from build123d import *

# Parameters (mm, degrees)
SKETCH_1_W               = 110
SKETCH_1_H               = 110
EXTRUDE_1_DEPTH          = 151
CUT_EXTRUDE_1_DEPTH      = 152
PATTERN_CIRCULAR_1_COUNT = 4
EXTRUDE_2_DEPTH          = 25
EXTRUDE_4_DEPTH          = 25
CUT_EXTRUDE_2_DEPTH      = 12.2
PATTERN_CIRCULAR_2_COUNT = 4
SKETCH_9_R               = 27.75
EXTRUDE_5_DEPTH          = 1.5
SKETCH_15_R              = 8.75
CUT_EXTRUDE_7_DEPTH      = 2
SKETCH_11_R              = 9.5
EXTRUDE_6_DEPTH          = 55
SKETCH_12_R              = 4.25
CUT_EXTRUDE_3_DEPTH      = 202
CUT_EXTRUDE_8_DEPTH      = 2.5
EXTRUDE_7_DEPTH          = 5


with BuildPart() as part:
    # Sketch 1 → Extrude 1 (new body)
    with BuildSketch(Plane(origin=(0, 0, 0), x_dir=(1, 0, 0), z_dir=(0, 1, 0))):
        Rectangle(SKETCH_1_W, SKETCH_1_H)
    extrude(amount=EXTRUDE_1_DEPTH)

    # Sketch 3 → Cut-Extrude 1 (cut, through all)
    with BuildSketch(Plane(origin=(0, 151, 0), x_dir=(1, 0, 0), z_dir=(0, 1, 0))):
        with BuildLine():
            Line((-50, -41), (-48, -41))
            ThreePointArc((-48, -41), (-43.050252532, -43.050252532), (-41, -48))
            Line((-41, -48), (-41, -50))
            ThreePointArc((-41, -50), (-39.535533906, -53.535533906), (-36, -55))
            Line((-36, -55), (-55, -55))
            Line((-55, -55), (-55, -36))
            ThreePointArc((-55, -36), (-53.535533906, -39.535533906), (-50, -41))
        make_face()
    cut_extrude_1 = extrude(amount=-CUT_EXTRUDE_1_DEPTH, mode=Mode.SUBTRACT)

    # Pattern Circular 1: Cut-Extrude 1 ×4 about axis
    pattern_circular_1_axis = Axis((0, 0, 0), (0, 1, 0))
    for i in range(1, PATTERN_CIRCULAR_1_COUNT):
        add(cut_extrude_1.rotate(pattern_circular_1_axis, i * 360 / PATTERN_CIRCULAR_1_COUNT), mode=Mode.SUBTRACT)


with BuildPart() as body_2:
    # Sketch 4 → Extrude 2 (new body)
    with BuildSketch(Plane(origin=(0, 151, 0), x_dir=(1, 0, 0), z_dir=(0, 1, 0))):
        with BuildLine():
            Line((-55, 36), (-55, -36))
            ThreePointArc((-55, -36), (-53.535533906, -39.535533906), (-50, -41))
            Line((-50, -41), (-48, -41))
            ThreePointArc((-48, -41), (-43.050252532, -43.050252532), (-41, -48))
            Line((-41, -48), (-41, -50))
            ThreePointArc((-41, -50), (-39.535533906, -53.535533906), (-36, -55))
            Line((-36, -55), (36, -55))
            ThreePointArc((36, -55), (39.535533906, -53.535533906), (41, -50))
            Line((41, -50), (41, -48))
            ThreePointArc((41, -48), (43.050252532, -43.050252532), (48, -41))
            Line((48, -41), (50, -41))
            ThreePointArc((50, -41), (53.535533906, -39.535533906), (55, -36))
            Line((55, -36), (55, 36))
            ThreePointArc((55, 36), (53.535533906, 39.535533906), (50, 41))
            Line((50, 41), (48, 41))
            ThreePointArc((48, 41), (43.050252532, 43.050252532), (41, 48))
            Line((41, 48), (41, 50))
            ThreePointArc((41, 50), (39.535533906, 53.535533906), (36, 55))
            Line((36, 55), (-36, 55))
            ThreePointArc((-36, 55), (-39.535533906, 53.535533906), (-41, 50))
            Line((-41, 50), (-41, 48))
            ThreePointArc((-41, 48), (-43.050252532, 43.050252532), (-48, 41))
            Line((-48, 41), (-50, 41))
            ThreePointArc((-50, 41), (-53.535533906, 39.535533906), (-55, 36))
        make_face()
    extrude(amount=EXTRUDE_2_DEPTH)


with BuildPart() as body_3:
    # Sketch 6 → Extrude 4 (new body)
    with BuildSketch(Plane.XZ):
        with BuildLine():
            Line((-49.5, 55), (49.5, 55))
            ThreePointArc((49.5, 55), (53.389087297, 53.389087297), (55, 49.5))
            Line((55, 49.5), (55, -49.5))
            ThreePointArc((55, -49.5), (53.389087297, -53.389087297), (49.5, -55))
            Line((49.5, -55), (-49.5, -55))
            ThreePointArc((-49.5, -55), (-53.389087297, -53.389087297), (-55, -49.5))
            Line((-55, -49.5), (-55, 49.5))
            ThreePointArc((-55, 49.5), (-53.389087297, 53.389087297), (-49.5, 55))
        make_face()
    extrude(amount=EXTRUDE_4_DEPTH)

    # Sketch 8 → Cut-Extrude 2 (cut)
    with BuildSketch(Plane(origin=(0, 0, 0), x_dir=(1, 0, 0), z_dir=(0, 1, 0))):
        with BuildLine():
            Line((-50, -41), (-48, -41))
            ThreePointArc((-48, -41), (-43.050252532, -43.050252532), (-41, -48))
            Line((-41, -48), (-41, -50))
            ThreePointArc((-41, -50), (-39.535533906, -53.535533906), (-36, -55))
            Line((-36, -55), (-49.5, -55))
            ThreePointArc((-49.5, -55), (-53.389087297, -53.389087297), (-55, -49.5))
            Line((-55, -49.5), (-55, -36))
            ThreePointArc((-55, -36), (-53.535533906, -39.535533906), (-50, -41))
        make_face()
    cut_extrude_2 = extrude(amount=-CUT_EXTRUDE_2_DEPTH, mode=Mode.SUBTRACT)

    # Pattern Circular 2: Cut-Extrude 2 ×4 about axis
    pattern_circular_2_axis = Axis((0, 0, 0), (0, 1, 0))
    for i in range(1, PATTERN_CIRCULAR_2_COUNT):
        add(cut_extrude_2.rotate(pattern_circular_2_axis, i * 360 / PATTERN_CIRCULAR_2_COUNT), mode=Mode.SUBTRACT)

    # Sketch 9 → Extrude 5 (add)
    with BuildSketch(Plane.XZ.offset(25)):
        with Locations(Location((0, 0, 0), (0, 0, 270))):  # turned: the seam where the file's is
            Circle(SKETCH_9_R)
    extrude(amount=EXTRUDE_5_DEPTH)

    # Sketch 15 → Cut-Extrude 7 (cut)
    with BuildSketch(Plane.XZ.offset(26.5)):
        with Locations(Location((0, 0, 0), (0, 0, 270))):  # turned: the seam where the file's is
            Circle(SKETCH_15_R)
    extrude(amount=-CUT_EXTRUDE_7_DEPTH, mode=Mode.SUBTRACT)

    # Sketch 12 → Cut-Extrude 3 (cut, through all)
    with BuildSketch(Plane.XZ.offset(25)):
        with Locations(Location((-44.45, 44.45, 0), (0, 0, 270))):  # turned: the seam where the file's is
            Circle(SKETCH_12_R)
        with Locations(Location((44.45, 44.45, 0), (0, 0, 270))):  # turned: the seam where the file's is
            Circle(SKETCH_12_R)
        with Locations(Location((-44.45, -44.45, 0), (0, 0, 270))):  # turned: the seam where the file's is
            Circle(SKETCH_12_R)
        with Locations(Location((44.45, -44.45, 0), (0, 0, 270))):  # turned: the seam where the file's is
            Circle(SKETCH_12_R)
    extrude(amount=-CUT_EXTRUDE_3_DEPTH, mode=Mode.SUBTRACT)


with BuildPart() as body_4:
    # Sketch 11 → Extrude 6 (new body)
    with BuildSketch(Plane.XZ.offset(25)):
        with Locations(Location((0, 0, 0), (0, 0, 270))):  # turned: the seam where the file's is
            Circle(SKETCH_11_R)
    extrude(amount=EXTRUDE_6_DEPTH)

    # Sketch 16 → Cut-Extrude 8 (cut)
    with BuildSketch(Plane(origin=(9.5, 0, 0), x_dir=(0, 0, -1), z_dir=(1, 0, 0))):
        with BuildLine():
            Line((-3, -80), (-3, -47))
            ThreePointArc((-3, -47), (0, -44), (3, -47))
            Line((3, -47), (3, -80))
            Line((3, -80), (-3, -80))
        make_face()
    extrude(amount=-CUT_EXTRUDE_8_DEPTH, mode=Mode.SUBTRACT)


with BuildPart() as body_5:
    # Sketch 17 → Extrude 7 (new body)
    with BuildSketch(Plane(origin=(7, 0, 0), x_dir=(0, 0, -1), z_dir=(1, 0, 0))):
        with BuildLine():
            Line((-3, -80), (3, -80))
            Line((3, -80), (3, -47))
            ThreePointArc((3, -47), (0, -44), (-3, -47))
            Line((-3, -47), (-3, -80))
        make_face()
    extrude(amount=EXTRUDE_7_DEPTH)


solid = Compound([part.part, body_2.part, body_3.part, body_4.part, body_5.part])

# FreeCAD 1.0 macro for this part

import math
import FreeCAD as App
import Part
import Sketcher

V = App.Vector
Q = App.Units.Quantity

doc = App.newDocument("Part")
body = doc.addObject("PartDesign::Body", "Body")

sketch1 = body.newObject("Sketcher::SketchObject", "Sketch")
sketch1.AttachmentSupport = (doc.getObject("XZ_Plane"), [""])
sketch1.MapMode = "FlatFace"
sketch1.addGeometry([
    Part.LineSegment(V(-55, -55, 0), V(-55, 55, 0)),
    Part.LineSegment(V(-55, 55, 0), V(55, 55, 0)),
    Part.LineSegment(V(55, 55, 0), V(55, -55, 0)),
    Part.LineSegment(V(55, -55, 0), V(-55, -55, 0)),
], False)
sketch1.addConstraint([
    Sketcher.Constraint("Coincident", 0, 2, 1, 1),
    Sketcher.Constraint("Coincident", 1, 2, 2, 1),
    Sketcher.Constraint("Coincident", 2, 2, 3, 1),
    Sketcher.Constraint("Coincident", 3, 2, 0, 1),
    Sketcher.Constraint("Vertical", 0),
    Sketcher.Constraint("Horizontal", 1),
    Sketcher.Constraint("Vertical", 2),
    Sketcher.Constraint("Horizontal", 3),
    Sketcher.Constraint("Symmetric", 0, 2, 2, 2, -1, 1),
    Sketcher.Constraint("Equal", 3, 0),
    Sketcher.Constraint("DistanceX", 1, 1, 1, 2, Q("110 mm")),
])
pad1 = body.newObject("PartDesign::Pad", "Pad")
pad1.Profile = sketch1
pad1.Length = 151
pad1.Reversed = True

sketch2 = body.newObject("Sketcher::SketchObject", "Sketch001")
sketch2.AttachmentSupport = (doc.getObject("XZ_Plane"), [""])
sketch2.MapMode = "FlatFace"
sketch2.AttachmentOffset = App.Placement(V(0, 0, -151), App.Rotation())
sketch2.addGeometry([
    Part.LineSegment(V(-48, 41, 0), V(-50, 41, 0)),
    Part.ArcOfCircle(Part.Circle(V(-50, 36, 0), V(0, 0, 1), 5), math.radians(90), math.radians(180)),
    Part.LineSegment(V(-55, 36, 0), V(-55, 55, 0)),
    Part.LineSegment(V(-55, 55, 0), V(-36, 55, 0)),
    Part.ArcOfCircle(Part.Circle(V(-36, 50, 0), V(0, 0, 1), 5), math.radians(90), math.radians(180)),
    Part.LineSegment(V(-41, 50, 0), V(-41, 48, 0)),
    Part.ArcOfCircle(Part.Circle(V(-48, 48, 0), V(0, 0, 1), 7), math.radians(-90), math.radians(0)),
], False)
sketch2.addConstraint([
    Sketcher.Constraint("Tangent", 0, 2, 1, 1),
    Sketcher.Constraint("Tangent", 1, 2, 2, 1),
    Sketcher.Constraint("Coincident", 2, 2, 3, 1),
    Sketcher.Constraint("Tangent", 3, 2, 4, 1),
    Sketcher.Constraint("Tangent", 4, 2, 5, 1),
    Sketcher.Constraint("Tangent", 5, 2, 6, 2),
    Sketcher.Constraint("Tangent", 6, 1, 0, 1),
    Sketcher.Constraint("Horizontal", 0),
    Sketcher.Constraint("Vertical", 2),
    Sketcher.Constraint("Horizontal", 3),
    Sketcher.Constraint("Vertical", 5),
    Sketcher.Constraint("Equal", 1, 4),
    Sketcher.Constraint("Equal", 3, 2),
    Sketcher.Constraint("Radius", 1, Q("5 mm")),
    Sketcher.Constraint("Radius", 6, Q("7 mm")),
    Sketcher.Constraint("DistanceX", 0, 2, 0, 1, Q("2 mm")),
    Sketcher.Constraint("DistanceX", 1, 3, -1, 1, Q("50 mm")),
    Sketcher.Constraint("DistanceY", -1, 1, 1, 3, Q("36 mm")),
])
pocket1 = body.newObject("PartDesign::Pocket", "Pocket")
pocket1.Profile = sketch2
pocket1.Type = "ThroughAll"
pocket1.Reversed = True
doc.recompute()

polarpattern = body.newObject("PartDesign::PolarPattern", "PolarPattern")
polarpattern.Originals = [pocket1]
polarpattern.Axis = (doc.getObject("Y_Axis"), [""])
polarpattern.Angle = 360
polarpattern.Occurrences = 4
body.Tip = polarpattern
body2 = doc.addObject("PartDesign::Body", "Body001")

sketch3 = body2.newObject("Sketcher::SketchObject", "Sketch002")
sketch3.AttachmentSupport = (doc.getObject("XZ_Plane001"), [""])
sketch3.MapMode = "FlatFace"
sketch3.AttachmentOffset = App.Placement(V(0, 0, -151), App.Rotation())
sketch3.addGeometry([
    Part.LineSegment(V(-55, -36, 0), V(-55, 36, 0)),
    Part.ArcOfCircle(Part.Circle(V(-50, 36, 0), V(0, 0, 1), 5), math.radians(90), math.radians(180)),
    Part.LineSegment(V(-50, 41, 0), V(-48, 41, 0)),
    Part.ArcOfCircle(Part.Circle(V(-48, 48, 0), V(0, 0, 1), 7), math.radians(-90), math.radians(0)),
    Part.LineSegment(V(-41, 48, 0), V(-41, 50, 0)),
    Part.ArcOfCircle(Part.Circle(V(-36, 50, 0), V(0, 0, 1), 5), math.radians(90), math.radians(180)),
    Part.LineSegment(V(-36, 55, 0), V(36, 55, 0)),
    Part.ArcOfCircle(Part.Circle(V(36, 50, 0), V(0, 0, 1), 5), math.radians(0), math.radians(90)),
    Part.LineSegment(V(41, 50, 0), V(41, 48, 0)),
    Part.ArcOfCircle(Part.Circle(V(48, 48, 0), V(0, 0, 1), 7), math.radians(-180), math.radians(-90)),
    Part.LineSegment(V(48, 41, 0), V(50, 41, 0)),
    Part.ArcOfCircle(Part.Circle(V(50, 36, 0), V(0, 0, 1), 5), math.radians(0), math.radians(90)),
    Part.LineSegment(V(55, 36, 0), V(55, -36, 0)),
    Part.ArcOfCircle(Part.Circle(V(50, -36, 0), V(0, 0, 1), 5), math.radians(-90), math.radians(0)),
    Part.LineSegment(V(50, -41, 0), V(48, -41, 0)),
    Part.ArcOfCircle(Part.Circle(V(48, -48, 0), V(0, 0, 1), 7), math.radians(90), math.radians(180)),
    Part.LineSegment(V(41, -48, 0), V(41, -50, 0)),
    Part.ArcOfCircle(Part.Circle(V(36, -50, 0), V(0, 0, 1), 5), math.radians(-90), math.radians(0)),
    Part.LineSegment(V(36, -55, 0), V(-36, -55, 0)),
    Part.ArcOfCircle(Part.Circle(V(-36, -50, 0), V(0, 0, 1), 5), math.radians(180), math.radians(270)),
    Part.LineSegment(V(-41, -50, 0), V(-41, -48, 0)),
    Part.ArcOfCircle(Part.Circle(V(-48, -48, 0), V(0, 0, 1), 7), math.radians(0), math.radians(90)),
    Part.LineSegment(V(-48, -41, 0), V(-50, -41, 0)),
    Part.ArcOfCircle(Part.Circle(V(-50, -36, 0), V(0, 0, 1), 5), math.radians(180), math.radians(270)),
], False)
sketch3.addConstraint([
    Sketcher.Constraint("Tangent", 0, 2, 1, 2),
    Sketcher.Constraint("Tangent", 1, 1, 2, 1),
    Sketcher.Constraint("Tangent", 2, 2, 3, 1),
    Sketcher.Constraint("Tangent", 3, 2, 4, 1),
    Sketcher.Constraint("Tangent", 4, 2, 5, 2),
    Sketcher.Constraint("Tangent", 5, 1, 6, 1),
    Sketcher.Constraint("Tangent", 6, 2, 7, 2),
    Sketcher.Constraint("Tangent", 7, 1, 8, 1),
    Sketcher.Constraint("Tangent", 8, 2, 9, 1),
    Sketcher.Constraint("Tangent", 9, 2, 10, 1),
    Sketcher.Constraint("Tangent", 10, 2, 11, 2),
    Sketcher.Constraint("Tangent", 11, 1, 12, 1),
    Sketcher.Constraint("Tangent", 12, 2, 13, 2),
    Sketcher.Constraint("Tangent", 13, 1, 14, 1),
    Sketcher.Constraint("Tangent", 14, 2, 15, 1),
    Sketcher.Constraint("Tangent", 15, 2, 16, 1),
    Sketcher.Constraint("Tangent", 16, 2, 17, 2),
    Sketcher.Constraint("Tangent", 17, 1, 18, 1),
    Sketcher.Constraint("Tangent", 18, 2, 19, 2),
    Sketcher.Constraint("Tangent", 19, 1, 20, 1),
    Sketcher.Constraint("Tangent", 20, 2, 21, 1),
    Sketcher.Constraint("Tangent", 21, 2, 22, 1),
    Sketcher.Constraint("Tangent", 22, 2, 23, 2),
    Sketcher.Constraint("Tangent", 23, 1, 0, 1),
    Sketcher.Constraint("Vertical", 0),
    Sketcher.Constraint("Horizontal", 2),
    Sketcher.Constraint("Vertical", 4),
    Sketcher.Constraint("Horizontal", 6),
    Sketcher.Constraint("Vertical", 8),
    Sketcher.Constraint("Horizontal", 10),
    Sketcher.Constraint("Vertical", 12),
    Sketcher.Constraint("Horizontal", 14),
    Sketcher.Constraint("Vertical", 16),
    Sketcher.Constraint("Horizontal", 18),
    Sketcher.Constraint("Vertical", 20),
    Sketcher.Constraint("Horizontal", 22),
    Sketcher.Constraint("Equal", 1, 5),
    Sketcher.Constraint("Equal", 5, 7),
    Sketcher.Constraint("Equal", 3, 9),
    Sketcher.Constraint("Equal", 7, 11),
    Sketcher.Constraint("Equal", 11, 13),
    Sketcher.Constraint("Equal", 9, 15),
    Sketcher.Constraint("Equal", 13, 17),
    Sketcher.Constraint("Equal", 17, 19),
    Sketcher.Constraint("Equal", 15, 21),
    Sketcher.Constraint("Equal", 19, 23),
    Sketcher.Constraint("Symmetric", 1, 3, 13, 3, -1, 1),
    Sketcher.Constraint("Symmetric", 5, 3, 17, 3, -1, 1),
    Sketcher.Constraint("Symmetric", 9, 3, 21, 3, -1, 1),
    Sketcher.Constraint("Symmetric", 3, 3, 9, 3, -2),
    Sketcher.Constraint("Equal", 18, 0),
    Sketcher.Constraint("Equal", 22, 4),
    Sketcher.Constraint("Radius", 1, Q("5 mm")),
    Sketcher.Constraint("Radius", 3, Q("7 mm")),
    Sketcher.Constraint("DistanceX", 2, 1, 2, 2, Q("2 mm")),
    Sketcher.Constraint("DistanceX", 6, 1, 6, 2, Q("72 mm")),
])
pad2 = body2.newObject("PartDesign::Pad", "Pad001")
pad2.Profile = sketch3
pad2.Length = 25
pad2.Reversed = True
body3 = doc.addObject("PartDesign::Body", "Body002")

sketch4 = body3.newObject("Sketcher::SketchObject", "Sketch003")
sketch4.AttachmentSupport = (doc.getObject("XZ_Plane002"), [""])
sketch4.MapMode = "FlatFace"
sketch4.addGeometry([
    Part.LineSegment(V(50, 55, 0), V(-50, 55, 0)),
    Part.ArcOfCircle(Part.Circle(V(-50, 50, 0), V(0, 0, 1), 5), math.radians(90), math.radians(180)),
    Part.LineSegment(V(-55, 50, 0), V(-55, -50, 0)),
    Part.ArcOfCircle(Part.Circle(V(-50, -50, 0), V(0, 0, 1), 5), math.radians(180), math.radians(270)),
    Part.LineSegment(V(-50, -55, 0), V(50, -55, 0)),
    Part.ArcOfCircle(Part.Circle(V(50, -50, 0), V(0, 0, 1), 5), math.radians(-90), math.radians(0)),
    Part.LineSegment(V(55, -50, 0), V(55, 50, 0)),
    Part.ArcOfCircle(Part.Circle(V(50, 50, 0), V(0, 0, 1), 5), math.radians(0), math.radians(90)),
], False)
sketch4.addConstraint([
    Sketcher.Constraint("Tangent", 0, 2, 1, 1),
    Sketcher.Constraint("Tangent", 1, 2, 2, 1),
    Sketcher.Constraint("Tangent", 2, 2, 3, 1),
    Sketcher.Constraint("Tangent", 3, 2, 4, 1),
    Sketcher.Constraint("Tangent", 4, 2, 5, 1),
    Sketcher.Constraint("Tangent", 5, 2, 6, 1),
    Sketcher.Constraint("Tangent", 6, 2, 7, 1),
    Sketcher.Constraint("Tangent", 7, 2, 0, 1),
    Sketcher.Constraint("Horizontal", 0),
    Sketcher.Constraint("Vertical", 2),
    Sketcher.Constraint("Horizontal", 4),
    Sketcher.Constraint("Vertical", 6),
    Sketcher.Constraint("Equal", 1, 3),
    Sketcher.Constraint("Equal", 3, 5),
    Sketcher.Constraint("Equal", 5, 7),
    Sketcher.Constraint("Symmetric", 1, 3, 5, 3, -1, 1),
    Sketcher.Constraint("Equal", 4, 2),
    Sketcher.Constraint("Radius", 1, Q("5.5 mm")),
    Sketcher.Constraint("DistanceX", 0, 2, 0, 1, Q("99 mm")),
])
pad3 = body3.newObject("PartDesign::Pad", "Pad002")
pad3.Profile = sketch4
pad3.Length = 25

sketch5 = body3.newObject("Sketcher::SketchObject", "Sketch004")
sketch5.AttachmentSupport = (doc.getObject("XZ_Plane002"), [""])
sketch5.MapMode = "FlatFace"
sketch5.addGeometry([
    Part.LineSegment(V(-48, 41, 0), V(-50, 41, 0)),
    Part.ArcOfCircle(Part.Circle(V(-50, 36, 0), V(0, 0, 1), 5), math.radians(90), math.radians(180)),
    Part.LineSegment(V(-55, 36, 0), V(-55, 49.5, 0)),
    Part.ArcOfCircle(Part.Circle(V(-49.5, 49.5, 0), V(0, 0, 1), 5.5), math.radians(90), math.radians(180)),
    Part.LineSegment(V(-49.5, 55, 0), V(-36, 55, 0)),
    Part.ArcOfCircle(Part.Circle(V(-36, 50, 0), V(0, 0, 1), 5), math.radians(90), math.radians(180)),
    Part.LineSegment(V(-41, 50, 0), V(-41, 48, 0)),
    Part.ArcOfCircle(Part.Circle(V(-48, 48, 0), V(0, 0, 1), 7), math.radians(-90), math.radians(0)),
], False)
sketch5.addConstraint([
    Sketcher.Constraint("Tangent", 0, 2, 1, 1),
    Sketcher.Constraint("Tangent", 1, 2, 2, 1),
    Sketcher.Constraint("Tangent", 2, 2, 3, 2),
    Sketcher.Constraint("Tangent", 3, 1, 4, 1),
    Sketcher.Constraint("Tangent", 4, 2, 5, 1),
    Sketcher.Constraint("Tangent", 5, 2, 6, 1),
    Sketcher.Constraint("Tangent", 6, 2, 7, 2),
    Sketcher.Constraint("Tangent", 7, 1, 0, 1),
    Sketcher.Constraint("Horizontal", 0),
    Sketcher.Constraint("Vertical", 2),
    Sketcher.Constraint("Horizontal", 4),
    Sketcher.Constraint("Vertical", 6),
    Sketcher.Constraint("Equal", 1, 5),
    Sketcher.Constraint("Equal", 4, 2),
    Sketcher.Constraint("Radius", 1, Q("5 mm")),
    Sketcher.Constraint("Radius", 7, Q("7 mm")),
    Sketcher.Constraint("Radius", 3, Q("5.5 mm")),
    Sketcher.Constraint("DistanceX", 0, 2, 0, 1, Q("2 mm")),
    Sketcher.Constraint("DistanceX", 1, 3, -1, 1, Q("50 mm")),
    Sketcher.Constraint("DistanceY", -1, 1, 1, 3, Q("36 mm")),
])
pocket2 = body3.newObject("PartDesign::Pocket", "Pocket001")
pocket2.Profile = sketch5
pocket2.Length = 12.2
pocket2.Reversed = True
doc.recompute()

polarpattern2 = body3.newObject("PartDesign::PolarPattern", "PolarPattern001")
polarpattern2.Originals = [pocket2]
polarpattern2.Axis = (doc.getObject("Y_Axis002"), [""])
polarpattern2.Angle = 360
polarpattern2.Occurrences = 4
body3.Tip = polarpattern2

sketch6 = body3.newObject("Sketcher::SketchObject", "Sketch005")
sketch6.AttachmentSupport = (doc.getObject("XZ_Plane002"), [""])
sketch6.MapMode = "FlatFace"
sketch6.AttachmentOffset = App.Placement(V(0, 0, 25), App.Rotation())
sketch6.addGeometry(Part.Circle(V(0, 0, 0), V(0, 0, 1), 28), False)
sketch6.addConstraint([
    Sketcher.Constraint("Coincident", 0, 3, -1, 1),
    Sketcher.Constraint("Diameter", 0, Q("55.5 mm")),
])
pad4 = body3.newObject("PartDesign::Pad", "Pad003")
pad4.Profile = sketch6
pad4.Length = 1.5

sketch7 = body3.newObject("Sketcher::SketchObject", "Sketch006")
sketch7.AttachmentSupport = (doc.getObject("XZ_Plane002"), [""])
sketch7.MapMode = "FlatFace"
sketch7.AttachmentOffset = App.Placement(V(0, 0, 26.5), App.Rotation())
sketch7.addGeometry(Part.Circle(V(0, 0, 0), V(0, 0, 1), 9), False)
sketch7.addConstraint([
    Sketcher.Constraint("Coincident", 0, 3, -1, 1),
    Sketcher.Constraint("Diameter", 0, Q("17.5 mm")),
])
pocket3 = body3.newObject("PartDesign::Pocket", "Pocket002")
pocket3.Profile = sketch7
pocket3.Length = 2

sketch8 = body3.newObject("Sketcher::SketchObject", "Sketch007")
sketch8.AttachmentSupport = (doc.getObject("XZ_Plane002"), [""])
sketch8.MapMode = "FlatFace"
sketch8.AttachmentOffset = App.Placement(V(0, 0, 25), App.Rotation())
sketch8.addGeometry([
    Part.Circle(V(-44.5, 44.5, 0), V(0, 0, 1), 4.2),
    Part.Circle(V(44.5, 44.5, 0), V(0, 0, 1), 4.2),
    Part.Circle(V(-44.5, -44.5, 0), V(0, 0, 1), 4.2),
    Part.Circle(V(44.5, -44.5, 0), V(0, 0, 1), 4.2),
], False)
sketch8.addConstraint([
    Sketcher.Constraint("Equal", 0, 1),
    Sketcher.Constraint("Equal", 1, 2),
    Sketcher.Constraint("Equal", 2, 3),
    Sketcher.Constraint("Symmetric", 1, 3, 2, 3, -1, 1),
    Sketcher.Constraint("Symmetric", 0, 3, 3, 3, -1, 1),
    Sketcher.Constraint("Symmetric", 0, 3, 1, 3, -2),
    Sketcher.Constraint("Diameter", 0, Q("8.5 mm")),
    Sketcher.Constraint("DistanceX", 0, 3, 1, 3, Q("88.9 mm")),
    Sketcher.Constraint("DistanceY", 2, 3, 0, 3, Q("88.9 mm")),
])
pocket4 = body3.newObject("PartDesign::Pocket", "Pocket003")
pocket4.Profile = sketch8
pocket4.Type = "ThroughAll"
body4 = doc.addObject("PartDesign::Body", "Body003")

sketch9 = body4.newObject("Sketcher::SketchObject", "Sketch008")
sketch9.AttachmentSupport = (doc.getObject("XZ_Plane003"), [""])
sketch9.MapMode = "FlatFace"
sketch9.AttachmentOffset = App.Placement(V(0, 0, 25), App.Rotation())
sketch9.addGeometry(Part.Circle(V(0, 0, 0), V(0, 0, 1), 10), False)
sketch9.addConstraint([
    Sketcher.Constraint("Coincident", 0, 3, -1, 1),
    Sketcher.Constraint("Diameter", 0, Q("19 mm")),
])
pad5 = body4.newObject("PartDesign::Pad", "Pad004")
pad5.Profile = sketch9
pad5.Length = 55

sketch10 = body4.newObject("Sketcher::SketchObject", "Sketch009")
sketch10.AttachmentSupport = (doc.getObject("YZ_Plane003"), [""])
sketch10.MapMode = "FlatFace"
sketch10.AttachmentOffset = App.Placement(V(0, 0, 9.5), App.Rotation())
sketch10.addGeometry([
    Part.LineSegment(V(-47, 3, 0), V(-80, 3, 0)),
    Part.LineSegment(V(-80, 3, 0), V(-80, -3, 0)),
    Part.LineSegment(V(-80, -3, 0), V(-47, -3, 0)),
    Part.ArcOfCircle(Part.Circle(V(-47, 0, 0), V(0, 0, 1), 3), math.radians(-90), math.radians(90)),
], False)
sketch10.addConstraint([
    Sketcher.Constraint("Coincident", 0, 2, 1, 1),
    Sketcher.Constraint("Coincident", 1, 2, 2, 1),
    Sketcher.Constraint("Tangent", 2, 2, 3, 1),
    Sketcher.Constraint("Tangent", 3, 2, 0, 1),
    Sketcher.Constraint("Horizontal", 0),
    Sketcher.Constraint("Vertical", 1),
    Sketcher.Constraint("Horizontal", 2),
    Sketcher.Constraint("PointOnObject", 3, 3, -1),
    Sketcher.Constraint("Radius", 3, Q("3 mm")),
    Sketcher.Constraint("DistanceX", 0, 2, 0, 1, Q("33 mm")),
    Sketcher.Constraint("DistanceX", 3, 3, -1, 1, Q("47 mm")),
])
pocket5 = body4.newObject("PartDesign::Pocket", "Pocket004")
pocket5.Profile = sketch10
pocket5.Length = 2.5
body5 = doc.addObject("PartDesign::Body", "Body004")

sketch11 = body5.newObject("Sketcher::SketchObject", "Sketch010")
sketch11.AttachmentSupport = (doc.getObject("YZ_Plane004"), [""])
sketch11.MapMode = "FlatFace"
sketch11.AttachmentOffset = App.Placement(V(0, 0, 7), App.Rotation())
sketch11.addGeometry([
    Part.LineSegment(V(-80, 3, 0), V(-80, -3, 0)),
    Part.LineSegment(V(-80, -3, 0), V(-47, -3, 0)),
    Part.ArcOfCircle(Part.Circle(V(-47, 0, 0), V(0, 0, 1), 3), math.radians(-90), math.radians(90)),
    Part.LineSegment(V(-47, 3, 0), V(-80, 3, 0)),
], False)
sketch11.addConstraint([
    Sketcher.Constraint("Coincident", 0, 2, 1, 1),
    Sketcher.Constraint("Tangent", 1, 2, 2, 1),
    Sketcher.Constraint("Tangent", 2, 2, 3, 1),
    Sketcher.Constraint("Coincident", 3, 2, 0, 1),
    Sketcher.Constraint("Vertical", 0),
    Sketcher.Constraint("Horizontal", 1),
    Sketcher.Constraint("Horizontal", 3),
    Sketcher.Constraint("PointOnObject", 2, 3, -1),
    Sketcher.Constraint("Radius", 2, Q("3 mm")),
    Sketcher.Constraint("DistanceX", 1, 1, 1, 2, Q("33 mm")),
    Sketcher.Constraint("DistanceX", 2, 3, -1, 1, Q("47 mm")),
])
pad6 = body5.newObject("PartDesign::Pad", "Pad005")
pad6.Profile = sketch11
pad6.Length = 5

doc.recompute()
